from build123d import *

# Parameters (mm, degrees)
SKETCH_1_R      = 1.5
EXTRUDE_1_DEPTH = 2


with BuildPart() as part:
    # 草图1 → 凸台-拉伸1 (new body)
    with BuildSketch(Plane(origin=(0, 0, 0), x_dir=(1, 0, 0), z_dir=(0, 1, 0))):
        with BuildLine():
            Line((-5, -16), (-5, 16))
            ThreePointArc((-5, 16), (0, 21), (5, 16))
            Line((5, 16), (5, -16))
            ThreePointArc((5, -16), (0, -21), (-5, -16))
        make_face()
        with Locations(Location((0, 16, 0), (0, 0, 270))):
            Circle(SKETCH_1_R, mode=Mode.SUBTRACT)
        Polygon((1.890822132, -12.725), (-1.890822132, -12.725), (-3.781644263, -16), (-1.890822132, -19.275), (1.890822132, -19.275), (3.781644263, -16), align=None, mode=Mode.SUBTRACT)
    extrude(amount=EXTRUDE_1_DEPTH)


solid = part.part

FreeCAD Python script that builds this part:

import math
import FreeCAD as App
import Part
import Sketcher

V = App.Vector
Q = App.Units.Quantity

doc = App.newDocument("Part")
params = doc.addObject("Spreadsheet::Sheet", "Params")
for row, (alias, value) in enumerate([
    ("sketch1_diameter", "3 mm"),
    ("sketch1_radius", "5 mm"),
    ("sketch1_height", "32 mm"),
    ("pad1_length", "2 mm"),
], start=1):
    params.set(f"A{row}", alias)
    params.set(f"B{row}", "=" + value)
    params.setAlias(f"B{row}", alias)

body = doc.addObject("PartDesign::Body", "Body")

sketch1 = body.newObject("Sketcher::SketchObject", "Sketch")
sketch1.AttachmentSupport = (doc.getObject("XZ_Plane"), [""])
sketch1.MapMode = "FlatFace"
sketch1.addGeometry([
    Part.LineSegment(V(-5, -16, 0), V(-5, 16, 0)),
    Part.ArcOfCircle(Part.Circle(V(0, 16, 0), V(0, 0, 1), 5), math.radians(0), math.radians(180)),
    Part.LineSegment(V(5, 16, 0), V(5, -16, 0)),
    Part.ArcOfCircle(Part.Circle(V(0, -16, 0), V(0, 0, 1), 5), math.radians(180), math.radians(360)),
    Part.LineSegment(V(1.890822, 12.725, 0), V(3.781644, 16, 0)),
    Part.LineSegment(V(3.781644, 16, 0), V(1.890822, 19.275, 0)),
    Part.LineSegment(V(1.890822, 19.275, 0), V(-1.890822, 19.275, 0)),
    Part.LineSegment(V(-1.890822, 19.275, 0), V(-3.781644, 16, 0)),
    Part.LineSegment(V(-3.781644, 16, 0), V(-1.890822, 12.725, 0)),
    Part.LineSegment(V(-1.890822, 12.725, 0), V(1.890822, 12.725, 0)),
    Part.Circle(V(0, -16, 0), V(0, 0, 1), 1.5),
], False)
sketch1.addConstraint([
    Sketcher.Constraint("Tangent", 0, 2, 1, 2),
    Sketcher.Constraint("Tangent", 1, 1, 2, 1),
    Sketcher.Constraint("Tangent", 2, 2, 3, 2),
    Sketcher.Constraint("Tangent", 3, 1, 0, 1),
    Sketcher.Constraint("Coincident", 4, 2, 5, 1),
    Sketcher.Constraint("Coincident", 5, 2, 6, 1),
    Sketcher.Constraint("Coincident", 6, 2, 7, 1),
    Sketcher.Constraint("Coincident", 7, 2, 8, 1),
    Sketcher.Constraint("Coincident", 8, 2, 9, 1),
    Sketcher.Constraint("Coincident", 9, 2, 4, 1),
    Sketcher.Constraint("Vertical", 0),
    Sketcher.Constraint("Vertical", 2),
    Sketcher.Constraint("Horizontal", 6),
    Sketcher.Constraint("Horizontal", 9),
    Sketcher.Constraint("Coincident", 10, 3, 3, 3),
    Sketcher.Constraint("Symmetric", 1, 3, 3, 3, -1, 1),
    Sketcher.Constraint("Symmetric", 4, 2, 7, 2, -2),
    Sketcher.Constraint("Parallel", 4, 7),
    Sketcher.Constraint("Parallel", 5, 8),
    Sketcher.Constraint("Horizontal", 1, 1, 4, 2),
    Sketcher.Constraint("Vertical", 6, 2, 8, 2),
    Sketcher.Constraint("Vertical", 5, 2, 9, 2),
    Sketcher.Constraint("Diameter", 10, 3.0),
    Sketcher.Constraint("Radius", 1, 5.0),
    Sketcher.Constraint("DistanceY", 0, 1, 0, 2, 32.0),
    Sketcher.Constraint("Angle", 4, Q("60 deg")),
    Sketcher.Constraint("DistanceY", 8, 2, 6, 2, 6.55),
    Sketcher.Constraint("DistanceX", 6, 2, 6, 1, 3.781644),
])
sketch1.setExpression("Constraints[22]", "Params.sketch1_diameter")
sketch1.setExpression("Constraints[23]", "Params.sketch1_radius")
sketch1.setExpression("Constraints[24]", "Params.sketch1_height")
pad1 = body.newObject("PartDesign::Pad", "Pad")
pad1.Profile = sketch1
pad1.setExpression("Length", "Params.pad1_length")
pad1.Reversed = True

doc.recompute()
